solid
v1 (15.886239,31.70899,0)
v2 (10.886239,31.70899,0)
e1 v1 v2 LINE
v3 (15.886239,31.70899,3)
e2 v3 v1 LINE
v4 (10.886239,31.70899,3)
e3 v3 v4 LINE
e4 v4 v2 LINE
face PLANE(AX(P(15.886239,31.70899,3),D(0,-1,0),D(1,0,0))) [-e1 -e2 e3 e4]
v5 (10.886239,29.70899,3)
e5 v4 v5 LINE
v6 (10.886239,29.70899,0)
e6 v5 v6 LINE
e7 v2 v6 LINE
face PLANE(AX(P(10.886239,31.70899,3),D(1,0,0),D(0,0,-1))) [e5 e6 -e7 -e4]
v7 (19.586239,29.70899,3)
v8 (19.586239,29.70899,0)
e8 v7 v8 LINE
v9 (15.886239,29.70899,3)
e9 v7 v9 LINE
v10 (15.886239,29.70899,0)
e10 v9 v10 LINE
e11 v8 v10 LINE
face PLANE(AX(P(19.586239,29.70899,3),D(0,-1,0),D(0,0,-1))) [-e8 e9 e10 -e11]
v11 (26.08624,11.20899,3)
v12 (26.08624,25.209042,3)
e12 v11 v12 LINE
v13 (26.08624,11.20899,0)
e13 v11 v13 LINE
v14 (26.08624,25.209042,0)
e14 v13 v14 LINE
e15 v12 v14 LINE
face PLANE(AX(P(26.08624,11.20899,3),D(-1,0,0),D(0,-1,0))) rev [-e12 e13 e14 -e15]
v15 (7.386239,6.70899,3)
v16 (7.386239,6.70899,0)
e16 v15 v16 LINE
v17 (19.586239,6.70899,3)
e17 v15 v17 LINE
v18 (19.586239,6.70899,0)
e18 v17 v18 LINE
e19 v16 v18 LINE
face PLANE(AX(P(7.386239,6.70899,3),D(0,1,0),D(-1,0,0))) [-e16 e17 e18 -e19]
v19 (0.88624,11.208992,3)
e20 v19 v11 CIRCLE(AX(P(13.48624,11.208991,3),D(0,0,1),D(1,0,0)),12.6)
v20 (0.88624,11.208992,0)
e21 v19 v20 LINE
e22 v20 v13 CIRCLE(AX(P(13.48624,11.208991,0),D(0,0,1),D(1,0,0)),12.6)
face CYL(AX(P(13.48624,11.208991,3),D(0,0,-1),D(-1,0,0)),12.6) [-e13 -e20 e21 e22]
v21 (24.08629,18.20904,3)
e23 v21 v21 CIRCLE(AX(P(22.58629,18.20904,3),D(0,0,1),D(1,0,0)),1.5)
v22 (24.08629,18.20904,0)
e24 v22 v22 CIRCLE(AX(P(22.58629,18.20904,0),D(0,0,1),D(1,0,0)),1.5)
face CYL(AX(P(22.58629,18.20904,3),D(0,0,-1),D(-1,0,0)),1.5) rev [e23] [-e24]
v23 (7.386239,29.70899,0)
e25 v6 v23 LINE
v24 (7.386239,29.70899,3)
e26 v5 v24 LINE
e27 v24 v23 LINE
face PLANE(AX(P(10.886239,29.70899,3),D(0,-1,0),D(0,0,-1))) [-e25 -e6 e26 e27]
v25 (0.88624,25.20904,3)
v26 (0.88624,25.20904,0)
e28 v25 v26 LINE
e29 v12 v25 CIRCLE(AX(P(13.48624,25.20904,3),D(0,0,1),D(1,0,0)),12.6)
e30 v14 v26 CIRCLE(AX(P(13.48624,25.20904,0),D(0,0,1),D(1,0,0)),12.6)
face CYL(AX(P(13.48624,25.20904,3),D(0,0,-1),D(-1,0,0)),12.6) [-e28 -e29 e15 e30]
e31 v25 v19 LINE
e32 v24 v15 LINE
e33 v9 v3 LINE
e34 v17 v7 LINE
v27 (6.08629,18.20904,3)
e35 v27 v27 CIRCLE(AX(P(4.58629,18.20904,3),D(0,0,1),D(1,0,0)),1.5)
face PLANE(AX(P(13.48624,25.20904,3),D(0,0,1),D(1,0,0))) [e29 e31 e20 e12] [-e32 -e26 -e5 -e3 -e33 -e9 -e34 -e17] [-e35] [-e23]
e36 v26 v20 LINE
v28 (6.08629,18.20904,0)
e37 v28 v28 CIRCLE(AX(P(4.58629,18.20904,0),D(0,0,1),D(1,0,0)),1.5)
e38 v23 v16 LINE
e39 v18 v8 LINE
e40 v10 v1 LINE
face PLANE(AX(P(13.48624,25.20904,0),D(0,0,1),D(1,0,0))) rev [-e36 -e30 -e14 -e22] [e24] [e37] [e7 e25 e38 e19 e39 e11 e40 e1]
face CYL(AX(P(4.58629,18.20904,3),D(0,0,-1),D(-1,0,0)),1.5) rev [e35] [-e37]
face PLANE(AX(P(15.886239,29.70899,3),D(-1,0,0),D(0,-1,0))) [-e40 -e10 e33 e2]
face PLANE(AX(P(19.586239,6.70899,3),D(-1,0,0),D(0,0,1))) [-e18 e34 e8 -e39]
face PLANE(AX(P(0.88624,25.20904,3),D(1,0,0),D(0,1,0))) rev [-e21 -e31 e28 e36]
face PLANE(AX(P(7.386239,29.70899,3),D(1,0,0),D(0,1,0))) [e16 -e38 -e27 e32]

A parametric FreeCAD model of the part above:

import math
import FreeCAD as App
import Part
import Sketcher

V = App.Vector

doc = App.newDocument("Part")
body = doc.addObject("PartDesign::Body", "Body")

# Sketch on XY plane
sketch1 = doc.addObject("Sketcher::SketchObject", "Sketch")
body.addObject(sketch1)
sketch1.AttachmentSupport = (doc.XY_Plane, [""])
sketch1.MapMode = "FlatFace"
sketch1.addGeometry([
    Part.LineSegment(V(0.88624, 25.20904, 0), V(0.88624, 11.208992, 0)),  # 0
    Part.ArcOfCircle(Part.Circle(V(13.48624, 11.208991, 0), V(0, 0, 1), 12.6), math.radians(179.999995), math.radians(359.999995)),  # 1
    Part.LineSegment(V(26.08624, 11.20899, 0), V(26.08624, 25.209042, 0)),  # 2
    Part.ArcOfCircle(Part.Circle(V(13.48624, 25.20904, 0), V(0, 0, 1), 12.6), math.radians(0.000011), math.radians(180)),  # 3
    Part.Circle(V(4.58629, 18.20904, 0), V(0, 0, 1), 1.5),  # 4
    Part.Circle(V(22.58629, 18.20904, 0), V(0, 0, 1), 1.5),  # 5
    Part.LineSegment(V(19.586239, 29.70899, 0), V(19.586239, 6.70899, 0)),  # 6
    Part.LineSegment(V(19.586239, 6.70899, 0), V(7.386239, 6.70899, 0)),  # 7
    Part.LineSegment(V(7.386239, 6.70899, 0), V(7.386239, 29.70899, 0)),  # 8
    Part.LineSegment(V(7.386239, 29.70899, 0), V(10.886239, 29.70899, 0)),  # 9
    Part.LineSegment(V(10.886239, 29.70899, 0), V(10.886239, 31.70899, 0)),  # 10
    Part.LineSegment(V(10.886239, 31.70899, 0), V(15.886239, 31.70899, 0)),  # 11
    Part.LineSegment(V(15.886239, 31.70899, 0), V(15.886239, 29.70899, 0)),  # 12
    Part.LineSegment(V(15.886239, 29.70899, 0), V(19.586239, 29.70899, 0)),  # 13
], False)
sketch1.addConstraint([
    Sketcher.Constraint("Tangent", 0, 2, 1, 1),
    Sketcher.Constraint("Tangent", 1, 2, 2, 1),
    Sketcher.Constraint("Tangent", 2, 2, 3, 1),
    Sketcher.Constraint("Tangent", 3, 2, 0, 1),
    Sketcher.Constraint("Coincident", 6, 2, 7, 1),
    Sketcher.Constraint("Coincident", 7, 2, 8, 1),
    Sketcher.Constraint("Coincident", 8, 2, 9, 1),
    Sketcher.Constraint("Coincident", 9, 2, 10, 1),
    Sketcher.Constraint("Coincident", 10, 2, 11, 1),
    Sketcher.Constraint("Coincident", 11, 2, 12, 1),
    Sketcher.Constraint("Coincident", 12, 2, 13, 1),
    Sketcher.Constraint("Coincident", 13, 2, 6, 1),
    Sketcher.Constraint("Vertical", 0),
    Sketcher.Constraint("Vertical", 2),
    Sketcher.Constraint("Vertical", 6),
    Sketcher.Constraint("Horizontal", 7),
    Sketcher.Constraint("Vertical", 8),
    Sketcher.Constraint("Horizontal", 9),
    Sketcher.Constraint("Vertical", 10),
    Sketcher.Constraint("Horizontal", 11),
    Sketcher.Constraint("Vertical", 12),
    Sketcher.Constraint("Horizontal", 13),
    Sketcher.Constraint("Equal", 4, 5),
    Sketcher.Constraint("Horizontal", 4, 3, 5, 3),
    Sketcher.Constraint("Horizontal", 9, 2, 12, 2),
    Sketcher.Constraint("Diameter", 4, 3.0),
    Sketcher.Constraint("Radius", 1, 12.6),
    Sketcher.Constraint("DistanceX", 11, 1, 11, 2, 5.0),
    Sketcher.Constraint("DistanceY", 6, 2, 6, 1, 23.0),
    Sketcher.Constraint("DistanceY", 10, 1, 10, 2, 2.0),
    Sketcher.Constraint("DistanceX", 7, 2, 7, 1, 12.2),
    Sketcher.Constraint("DistanceX", 9, 1, 9, 2, 3.5),
    Sketcher.Constraint("DistanceY", 4, 3, 3, 3, 7.0),
    Sketcher.Constraint("DistanceX", 4, 3, 5, 3, 18.0),
    Sketcher.Constraint("DistanceX", 3, 2, 9, 2, 9.999999),
    Sketcher.Constraint("DistanceY", 6, 2, 1, 3, 4.500001),
    Sketcher.Constraint("DistanceY", 0, 2, 0, 1, 14.000048),
    Sketcher.Constraint("DistanceX", -1, 1, 1, 3, 13.48624),
    Sketcher.Constraint("DistanceY", -1, 1, 1, 3, 11.208991),
    Sketcher.Constraint("DistanceX", -1, 1, 4, 3, 4.58629),
])
pad1 = doc.addObject("PartDesign::Pad", "Pad")
body.addObject(pad1)
pad1.Profile = sketch1
pad1.Length = 3

doc.recompute()
